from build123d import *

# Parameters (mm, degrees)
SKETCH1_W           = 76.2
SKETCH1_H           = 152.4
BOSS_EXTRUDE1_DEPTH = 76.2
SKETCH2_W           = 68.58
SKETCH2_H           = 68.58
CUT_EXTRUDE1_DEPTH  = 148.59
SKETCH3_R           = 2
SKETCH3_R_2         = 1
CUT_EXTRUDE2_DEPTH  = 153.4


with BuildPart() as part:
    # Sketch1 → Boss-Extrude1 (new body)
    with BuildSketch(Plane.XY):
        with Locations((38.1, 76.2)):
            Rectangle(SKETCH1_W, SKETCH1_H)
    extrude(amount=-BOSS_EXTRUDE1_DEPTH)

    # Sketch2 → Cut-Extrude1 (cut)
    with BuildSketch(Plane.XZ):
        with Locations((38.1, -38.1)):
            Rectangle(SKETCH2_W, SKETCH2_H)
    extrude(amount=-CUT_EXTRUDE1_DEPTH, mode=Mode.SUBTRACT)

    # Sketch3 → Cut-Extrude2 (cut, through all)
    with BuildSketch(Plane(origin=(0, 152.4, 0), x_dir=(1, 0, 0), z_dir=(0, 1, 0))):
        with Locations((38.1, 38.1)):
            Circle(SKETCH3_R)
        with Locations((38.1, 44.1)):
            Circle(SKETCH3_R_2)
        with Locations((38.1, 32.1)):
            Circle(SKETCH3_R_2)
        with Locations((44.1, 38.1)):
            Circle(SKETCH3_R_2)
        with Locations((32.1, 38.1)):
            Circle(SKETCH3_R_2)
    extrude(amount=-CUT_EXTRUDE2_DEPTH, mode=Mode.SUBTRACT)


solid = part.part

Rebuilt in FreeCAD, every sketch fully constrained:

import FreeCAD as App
import Part
import Sketcher
Q = App.Units.Quantity


def add_polygon(sketch, points):
    """Adds a closed chain of lines whose ends are joined by coincident constraints."""
    first, n = sketch.GeometryCount, len(points)
    for a, b in zip(points, points[1:] + points[:1]):
        sketch.addGeometry(Part.LineSegment(App.Vector(*a, 0), App.Vector(*b, 0)), False)
    for i in range(n):
        sketch.addConstraint(Sketcher.Constraint("Coincident", first + i, 2, first + (i + 1) % n, 1))

doc = App.newDocument("Part")
body = doc.addObject("PartDesign::Body", "Body")

# Sketch on XY plane
sketch1 = body.newObject("Sketcher::SketchObject", "Sketch")
sketch1.AttachmentSupport = (doc.getObject("XY_Plane"), [""])
sketch1.MapMode = "FlatFace"
add_polygon(sketch1, [(0, 152), (0, 0), (76, 0), (76, 152)])  # lines 0-3
sketch1.addConstraint([
    Sketcher.Constraint("Vertical", 0),
    Sketcher.Constraint("Horizontal", 1),
    Sketcher.Constraint("Vertical", 2),
    Sketcher.Constraint("Horizontal", 3),
    Sketcher.Constraint("Coincident", 0, 2, -1, 1),
    Sketcher.Constraint("DistanceX", 1, 1, 1, 2, Q("3 in")),
    Sketcher.Constraint("DistanceY", 0, 2, 0, 1, Q("6 in")),
])
pad1 = body.newObject("PartDesign::Pad", "Pad")
pad1.Profile = sketch1
pad1.Length = Q("3 in")
pad1.Reversed = True

# Sketch on XZ plane
sketch2 = body.newObject("Sketcher::SketchObject", "Sketch001")
sketch2.AttachmentSupport = (doc.getObject("XZ_Plane"), [""])
sketch2.MapMode = "FlatFace"
add_polygon(sketch2, [(4, -4), (4, -72), (72, -72), (72, -4)])  # lines 0-3
sketch2.addConstraint([
    Sketcher.Constraint("Vertical", 0),
    Sketcher.Constraint("Horizontal", 1),
    Sketcher.Constraint("Vertical", 2),
    Sketcher.Constraint("Horizontal", 3),
    Sketcher.Constraint("Equal", 3, 0),
    Sketcher.Constraint("DistanceX", 1, 1, 1, 2, Q("2.7 in")),
    Sketcher.Constraint("DistanceX", -1, 1, 0, 2, Q("0.15 in")),
    Sketcher.Constraint("DistanceY", 0, 2, -1, 1, Q("2.85 in")),
])
pocket1 = body.newObject("PartDesign::Pocket", "Pocket")
pocket1.Profile = sketch2
pocket1.Length = Q("5.85 in")

# Sketch on XZ plane
sketch3 = body.newObject("Sketcher::SketchObject", "Sketch002")
sketch3.AttachmentSupport = (doc.getObject("XZ_Plane"), [""])
sketch3.MapMode = "FlatFace"
sketch3.AttachmentOffset = App.Placement(App.Vector(0, 0, -6 * 25.4), App.Rotation())
sketch3.addGeometry([
    Part.Circle(App.Vector(38.1, -38.1, 0), App.Vector(0, 0, 1), 2),  # 0
    Part.Circle(App.Vector(38.1, -44.1, 0), App.Vector(0, 0, 1), 1),  # 1
    Part.Circle(App.Vector(38.1, -32.1, 0), App.Vector(0, 0, 1), 1),  # 2
    Part.Circle(App.Vector(44.1, -38.1, 0), App.Vector(0, 0, 1), 1),  # 3
    Part.Circle(App.Vector(32.1, -38.1, 0), App.Vector(0, 0, 1), 1),  # 4
], False)
sketch3.addConstraint([
    Sketcher.Constraint("Equal", 1, 2),
    Sketcher.Constraint("Equal", 2, 3),
    Sketcher.Constraint("Equal", 3, 4),
    Sketcher.Constraint("Horizontal", 0, 3, 3, 3),
    Sketcher.Constraint("Horizontal", 3, 3, 4, 3),
    Sketcher.Constraint("Vertical", 0, 3, 1, 3),
    Sketcher.Constraint("Vertical", 1, 3, 2, 3),
    Sketcher.Constraint("DistanceX", -1, 1, 0, 3, Q("1.5 in")),
    Sketcher.Constraint("DistanceY", 0, 3, -1, 1, Q("1.5 in")),
    Sketcher.Constraint("Diameter", 0, 4.0),
    Sketcher.Constraint("Diameter", 1, 2.0),
    Sketcher.Constraint("DistanceY", 1, 3, -1, 1, 44.1),
    Sketcher.Constraint("DistanceY", 2, 3, -1, 1, 32.1),
    Sketcher.Constraint("DistanceX", -1, 1, 3, 3, 44.1),
    Sketcher.Constraint("DistanceX", -1, 1, 4, 3, 32.1),
])
pocket2 = body.newObject("PartDesign::Pocket", "Pocket001")
pocket2.Profile = sketch3
pocket2.Type = "ThroughAll"
pocket2.Reversed = True

doc.recompute()
